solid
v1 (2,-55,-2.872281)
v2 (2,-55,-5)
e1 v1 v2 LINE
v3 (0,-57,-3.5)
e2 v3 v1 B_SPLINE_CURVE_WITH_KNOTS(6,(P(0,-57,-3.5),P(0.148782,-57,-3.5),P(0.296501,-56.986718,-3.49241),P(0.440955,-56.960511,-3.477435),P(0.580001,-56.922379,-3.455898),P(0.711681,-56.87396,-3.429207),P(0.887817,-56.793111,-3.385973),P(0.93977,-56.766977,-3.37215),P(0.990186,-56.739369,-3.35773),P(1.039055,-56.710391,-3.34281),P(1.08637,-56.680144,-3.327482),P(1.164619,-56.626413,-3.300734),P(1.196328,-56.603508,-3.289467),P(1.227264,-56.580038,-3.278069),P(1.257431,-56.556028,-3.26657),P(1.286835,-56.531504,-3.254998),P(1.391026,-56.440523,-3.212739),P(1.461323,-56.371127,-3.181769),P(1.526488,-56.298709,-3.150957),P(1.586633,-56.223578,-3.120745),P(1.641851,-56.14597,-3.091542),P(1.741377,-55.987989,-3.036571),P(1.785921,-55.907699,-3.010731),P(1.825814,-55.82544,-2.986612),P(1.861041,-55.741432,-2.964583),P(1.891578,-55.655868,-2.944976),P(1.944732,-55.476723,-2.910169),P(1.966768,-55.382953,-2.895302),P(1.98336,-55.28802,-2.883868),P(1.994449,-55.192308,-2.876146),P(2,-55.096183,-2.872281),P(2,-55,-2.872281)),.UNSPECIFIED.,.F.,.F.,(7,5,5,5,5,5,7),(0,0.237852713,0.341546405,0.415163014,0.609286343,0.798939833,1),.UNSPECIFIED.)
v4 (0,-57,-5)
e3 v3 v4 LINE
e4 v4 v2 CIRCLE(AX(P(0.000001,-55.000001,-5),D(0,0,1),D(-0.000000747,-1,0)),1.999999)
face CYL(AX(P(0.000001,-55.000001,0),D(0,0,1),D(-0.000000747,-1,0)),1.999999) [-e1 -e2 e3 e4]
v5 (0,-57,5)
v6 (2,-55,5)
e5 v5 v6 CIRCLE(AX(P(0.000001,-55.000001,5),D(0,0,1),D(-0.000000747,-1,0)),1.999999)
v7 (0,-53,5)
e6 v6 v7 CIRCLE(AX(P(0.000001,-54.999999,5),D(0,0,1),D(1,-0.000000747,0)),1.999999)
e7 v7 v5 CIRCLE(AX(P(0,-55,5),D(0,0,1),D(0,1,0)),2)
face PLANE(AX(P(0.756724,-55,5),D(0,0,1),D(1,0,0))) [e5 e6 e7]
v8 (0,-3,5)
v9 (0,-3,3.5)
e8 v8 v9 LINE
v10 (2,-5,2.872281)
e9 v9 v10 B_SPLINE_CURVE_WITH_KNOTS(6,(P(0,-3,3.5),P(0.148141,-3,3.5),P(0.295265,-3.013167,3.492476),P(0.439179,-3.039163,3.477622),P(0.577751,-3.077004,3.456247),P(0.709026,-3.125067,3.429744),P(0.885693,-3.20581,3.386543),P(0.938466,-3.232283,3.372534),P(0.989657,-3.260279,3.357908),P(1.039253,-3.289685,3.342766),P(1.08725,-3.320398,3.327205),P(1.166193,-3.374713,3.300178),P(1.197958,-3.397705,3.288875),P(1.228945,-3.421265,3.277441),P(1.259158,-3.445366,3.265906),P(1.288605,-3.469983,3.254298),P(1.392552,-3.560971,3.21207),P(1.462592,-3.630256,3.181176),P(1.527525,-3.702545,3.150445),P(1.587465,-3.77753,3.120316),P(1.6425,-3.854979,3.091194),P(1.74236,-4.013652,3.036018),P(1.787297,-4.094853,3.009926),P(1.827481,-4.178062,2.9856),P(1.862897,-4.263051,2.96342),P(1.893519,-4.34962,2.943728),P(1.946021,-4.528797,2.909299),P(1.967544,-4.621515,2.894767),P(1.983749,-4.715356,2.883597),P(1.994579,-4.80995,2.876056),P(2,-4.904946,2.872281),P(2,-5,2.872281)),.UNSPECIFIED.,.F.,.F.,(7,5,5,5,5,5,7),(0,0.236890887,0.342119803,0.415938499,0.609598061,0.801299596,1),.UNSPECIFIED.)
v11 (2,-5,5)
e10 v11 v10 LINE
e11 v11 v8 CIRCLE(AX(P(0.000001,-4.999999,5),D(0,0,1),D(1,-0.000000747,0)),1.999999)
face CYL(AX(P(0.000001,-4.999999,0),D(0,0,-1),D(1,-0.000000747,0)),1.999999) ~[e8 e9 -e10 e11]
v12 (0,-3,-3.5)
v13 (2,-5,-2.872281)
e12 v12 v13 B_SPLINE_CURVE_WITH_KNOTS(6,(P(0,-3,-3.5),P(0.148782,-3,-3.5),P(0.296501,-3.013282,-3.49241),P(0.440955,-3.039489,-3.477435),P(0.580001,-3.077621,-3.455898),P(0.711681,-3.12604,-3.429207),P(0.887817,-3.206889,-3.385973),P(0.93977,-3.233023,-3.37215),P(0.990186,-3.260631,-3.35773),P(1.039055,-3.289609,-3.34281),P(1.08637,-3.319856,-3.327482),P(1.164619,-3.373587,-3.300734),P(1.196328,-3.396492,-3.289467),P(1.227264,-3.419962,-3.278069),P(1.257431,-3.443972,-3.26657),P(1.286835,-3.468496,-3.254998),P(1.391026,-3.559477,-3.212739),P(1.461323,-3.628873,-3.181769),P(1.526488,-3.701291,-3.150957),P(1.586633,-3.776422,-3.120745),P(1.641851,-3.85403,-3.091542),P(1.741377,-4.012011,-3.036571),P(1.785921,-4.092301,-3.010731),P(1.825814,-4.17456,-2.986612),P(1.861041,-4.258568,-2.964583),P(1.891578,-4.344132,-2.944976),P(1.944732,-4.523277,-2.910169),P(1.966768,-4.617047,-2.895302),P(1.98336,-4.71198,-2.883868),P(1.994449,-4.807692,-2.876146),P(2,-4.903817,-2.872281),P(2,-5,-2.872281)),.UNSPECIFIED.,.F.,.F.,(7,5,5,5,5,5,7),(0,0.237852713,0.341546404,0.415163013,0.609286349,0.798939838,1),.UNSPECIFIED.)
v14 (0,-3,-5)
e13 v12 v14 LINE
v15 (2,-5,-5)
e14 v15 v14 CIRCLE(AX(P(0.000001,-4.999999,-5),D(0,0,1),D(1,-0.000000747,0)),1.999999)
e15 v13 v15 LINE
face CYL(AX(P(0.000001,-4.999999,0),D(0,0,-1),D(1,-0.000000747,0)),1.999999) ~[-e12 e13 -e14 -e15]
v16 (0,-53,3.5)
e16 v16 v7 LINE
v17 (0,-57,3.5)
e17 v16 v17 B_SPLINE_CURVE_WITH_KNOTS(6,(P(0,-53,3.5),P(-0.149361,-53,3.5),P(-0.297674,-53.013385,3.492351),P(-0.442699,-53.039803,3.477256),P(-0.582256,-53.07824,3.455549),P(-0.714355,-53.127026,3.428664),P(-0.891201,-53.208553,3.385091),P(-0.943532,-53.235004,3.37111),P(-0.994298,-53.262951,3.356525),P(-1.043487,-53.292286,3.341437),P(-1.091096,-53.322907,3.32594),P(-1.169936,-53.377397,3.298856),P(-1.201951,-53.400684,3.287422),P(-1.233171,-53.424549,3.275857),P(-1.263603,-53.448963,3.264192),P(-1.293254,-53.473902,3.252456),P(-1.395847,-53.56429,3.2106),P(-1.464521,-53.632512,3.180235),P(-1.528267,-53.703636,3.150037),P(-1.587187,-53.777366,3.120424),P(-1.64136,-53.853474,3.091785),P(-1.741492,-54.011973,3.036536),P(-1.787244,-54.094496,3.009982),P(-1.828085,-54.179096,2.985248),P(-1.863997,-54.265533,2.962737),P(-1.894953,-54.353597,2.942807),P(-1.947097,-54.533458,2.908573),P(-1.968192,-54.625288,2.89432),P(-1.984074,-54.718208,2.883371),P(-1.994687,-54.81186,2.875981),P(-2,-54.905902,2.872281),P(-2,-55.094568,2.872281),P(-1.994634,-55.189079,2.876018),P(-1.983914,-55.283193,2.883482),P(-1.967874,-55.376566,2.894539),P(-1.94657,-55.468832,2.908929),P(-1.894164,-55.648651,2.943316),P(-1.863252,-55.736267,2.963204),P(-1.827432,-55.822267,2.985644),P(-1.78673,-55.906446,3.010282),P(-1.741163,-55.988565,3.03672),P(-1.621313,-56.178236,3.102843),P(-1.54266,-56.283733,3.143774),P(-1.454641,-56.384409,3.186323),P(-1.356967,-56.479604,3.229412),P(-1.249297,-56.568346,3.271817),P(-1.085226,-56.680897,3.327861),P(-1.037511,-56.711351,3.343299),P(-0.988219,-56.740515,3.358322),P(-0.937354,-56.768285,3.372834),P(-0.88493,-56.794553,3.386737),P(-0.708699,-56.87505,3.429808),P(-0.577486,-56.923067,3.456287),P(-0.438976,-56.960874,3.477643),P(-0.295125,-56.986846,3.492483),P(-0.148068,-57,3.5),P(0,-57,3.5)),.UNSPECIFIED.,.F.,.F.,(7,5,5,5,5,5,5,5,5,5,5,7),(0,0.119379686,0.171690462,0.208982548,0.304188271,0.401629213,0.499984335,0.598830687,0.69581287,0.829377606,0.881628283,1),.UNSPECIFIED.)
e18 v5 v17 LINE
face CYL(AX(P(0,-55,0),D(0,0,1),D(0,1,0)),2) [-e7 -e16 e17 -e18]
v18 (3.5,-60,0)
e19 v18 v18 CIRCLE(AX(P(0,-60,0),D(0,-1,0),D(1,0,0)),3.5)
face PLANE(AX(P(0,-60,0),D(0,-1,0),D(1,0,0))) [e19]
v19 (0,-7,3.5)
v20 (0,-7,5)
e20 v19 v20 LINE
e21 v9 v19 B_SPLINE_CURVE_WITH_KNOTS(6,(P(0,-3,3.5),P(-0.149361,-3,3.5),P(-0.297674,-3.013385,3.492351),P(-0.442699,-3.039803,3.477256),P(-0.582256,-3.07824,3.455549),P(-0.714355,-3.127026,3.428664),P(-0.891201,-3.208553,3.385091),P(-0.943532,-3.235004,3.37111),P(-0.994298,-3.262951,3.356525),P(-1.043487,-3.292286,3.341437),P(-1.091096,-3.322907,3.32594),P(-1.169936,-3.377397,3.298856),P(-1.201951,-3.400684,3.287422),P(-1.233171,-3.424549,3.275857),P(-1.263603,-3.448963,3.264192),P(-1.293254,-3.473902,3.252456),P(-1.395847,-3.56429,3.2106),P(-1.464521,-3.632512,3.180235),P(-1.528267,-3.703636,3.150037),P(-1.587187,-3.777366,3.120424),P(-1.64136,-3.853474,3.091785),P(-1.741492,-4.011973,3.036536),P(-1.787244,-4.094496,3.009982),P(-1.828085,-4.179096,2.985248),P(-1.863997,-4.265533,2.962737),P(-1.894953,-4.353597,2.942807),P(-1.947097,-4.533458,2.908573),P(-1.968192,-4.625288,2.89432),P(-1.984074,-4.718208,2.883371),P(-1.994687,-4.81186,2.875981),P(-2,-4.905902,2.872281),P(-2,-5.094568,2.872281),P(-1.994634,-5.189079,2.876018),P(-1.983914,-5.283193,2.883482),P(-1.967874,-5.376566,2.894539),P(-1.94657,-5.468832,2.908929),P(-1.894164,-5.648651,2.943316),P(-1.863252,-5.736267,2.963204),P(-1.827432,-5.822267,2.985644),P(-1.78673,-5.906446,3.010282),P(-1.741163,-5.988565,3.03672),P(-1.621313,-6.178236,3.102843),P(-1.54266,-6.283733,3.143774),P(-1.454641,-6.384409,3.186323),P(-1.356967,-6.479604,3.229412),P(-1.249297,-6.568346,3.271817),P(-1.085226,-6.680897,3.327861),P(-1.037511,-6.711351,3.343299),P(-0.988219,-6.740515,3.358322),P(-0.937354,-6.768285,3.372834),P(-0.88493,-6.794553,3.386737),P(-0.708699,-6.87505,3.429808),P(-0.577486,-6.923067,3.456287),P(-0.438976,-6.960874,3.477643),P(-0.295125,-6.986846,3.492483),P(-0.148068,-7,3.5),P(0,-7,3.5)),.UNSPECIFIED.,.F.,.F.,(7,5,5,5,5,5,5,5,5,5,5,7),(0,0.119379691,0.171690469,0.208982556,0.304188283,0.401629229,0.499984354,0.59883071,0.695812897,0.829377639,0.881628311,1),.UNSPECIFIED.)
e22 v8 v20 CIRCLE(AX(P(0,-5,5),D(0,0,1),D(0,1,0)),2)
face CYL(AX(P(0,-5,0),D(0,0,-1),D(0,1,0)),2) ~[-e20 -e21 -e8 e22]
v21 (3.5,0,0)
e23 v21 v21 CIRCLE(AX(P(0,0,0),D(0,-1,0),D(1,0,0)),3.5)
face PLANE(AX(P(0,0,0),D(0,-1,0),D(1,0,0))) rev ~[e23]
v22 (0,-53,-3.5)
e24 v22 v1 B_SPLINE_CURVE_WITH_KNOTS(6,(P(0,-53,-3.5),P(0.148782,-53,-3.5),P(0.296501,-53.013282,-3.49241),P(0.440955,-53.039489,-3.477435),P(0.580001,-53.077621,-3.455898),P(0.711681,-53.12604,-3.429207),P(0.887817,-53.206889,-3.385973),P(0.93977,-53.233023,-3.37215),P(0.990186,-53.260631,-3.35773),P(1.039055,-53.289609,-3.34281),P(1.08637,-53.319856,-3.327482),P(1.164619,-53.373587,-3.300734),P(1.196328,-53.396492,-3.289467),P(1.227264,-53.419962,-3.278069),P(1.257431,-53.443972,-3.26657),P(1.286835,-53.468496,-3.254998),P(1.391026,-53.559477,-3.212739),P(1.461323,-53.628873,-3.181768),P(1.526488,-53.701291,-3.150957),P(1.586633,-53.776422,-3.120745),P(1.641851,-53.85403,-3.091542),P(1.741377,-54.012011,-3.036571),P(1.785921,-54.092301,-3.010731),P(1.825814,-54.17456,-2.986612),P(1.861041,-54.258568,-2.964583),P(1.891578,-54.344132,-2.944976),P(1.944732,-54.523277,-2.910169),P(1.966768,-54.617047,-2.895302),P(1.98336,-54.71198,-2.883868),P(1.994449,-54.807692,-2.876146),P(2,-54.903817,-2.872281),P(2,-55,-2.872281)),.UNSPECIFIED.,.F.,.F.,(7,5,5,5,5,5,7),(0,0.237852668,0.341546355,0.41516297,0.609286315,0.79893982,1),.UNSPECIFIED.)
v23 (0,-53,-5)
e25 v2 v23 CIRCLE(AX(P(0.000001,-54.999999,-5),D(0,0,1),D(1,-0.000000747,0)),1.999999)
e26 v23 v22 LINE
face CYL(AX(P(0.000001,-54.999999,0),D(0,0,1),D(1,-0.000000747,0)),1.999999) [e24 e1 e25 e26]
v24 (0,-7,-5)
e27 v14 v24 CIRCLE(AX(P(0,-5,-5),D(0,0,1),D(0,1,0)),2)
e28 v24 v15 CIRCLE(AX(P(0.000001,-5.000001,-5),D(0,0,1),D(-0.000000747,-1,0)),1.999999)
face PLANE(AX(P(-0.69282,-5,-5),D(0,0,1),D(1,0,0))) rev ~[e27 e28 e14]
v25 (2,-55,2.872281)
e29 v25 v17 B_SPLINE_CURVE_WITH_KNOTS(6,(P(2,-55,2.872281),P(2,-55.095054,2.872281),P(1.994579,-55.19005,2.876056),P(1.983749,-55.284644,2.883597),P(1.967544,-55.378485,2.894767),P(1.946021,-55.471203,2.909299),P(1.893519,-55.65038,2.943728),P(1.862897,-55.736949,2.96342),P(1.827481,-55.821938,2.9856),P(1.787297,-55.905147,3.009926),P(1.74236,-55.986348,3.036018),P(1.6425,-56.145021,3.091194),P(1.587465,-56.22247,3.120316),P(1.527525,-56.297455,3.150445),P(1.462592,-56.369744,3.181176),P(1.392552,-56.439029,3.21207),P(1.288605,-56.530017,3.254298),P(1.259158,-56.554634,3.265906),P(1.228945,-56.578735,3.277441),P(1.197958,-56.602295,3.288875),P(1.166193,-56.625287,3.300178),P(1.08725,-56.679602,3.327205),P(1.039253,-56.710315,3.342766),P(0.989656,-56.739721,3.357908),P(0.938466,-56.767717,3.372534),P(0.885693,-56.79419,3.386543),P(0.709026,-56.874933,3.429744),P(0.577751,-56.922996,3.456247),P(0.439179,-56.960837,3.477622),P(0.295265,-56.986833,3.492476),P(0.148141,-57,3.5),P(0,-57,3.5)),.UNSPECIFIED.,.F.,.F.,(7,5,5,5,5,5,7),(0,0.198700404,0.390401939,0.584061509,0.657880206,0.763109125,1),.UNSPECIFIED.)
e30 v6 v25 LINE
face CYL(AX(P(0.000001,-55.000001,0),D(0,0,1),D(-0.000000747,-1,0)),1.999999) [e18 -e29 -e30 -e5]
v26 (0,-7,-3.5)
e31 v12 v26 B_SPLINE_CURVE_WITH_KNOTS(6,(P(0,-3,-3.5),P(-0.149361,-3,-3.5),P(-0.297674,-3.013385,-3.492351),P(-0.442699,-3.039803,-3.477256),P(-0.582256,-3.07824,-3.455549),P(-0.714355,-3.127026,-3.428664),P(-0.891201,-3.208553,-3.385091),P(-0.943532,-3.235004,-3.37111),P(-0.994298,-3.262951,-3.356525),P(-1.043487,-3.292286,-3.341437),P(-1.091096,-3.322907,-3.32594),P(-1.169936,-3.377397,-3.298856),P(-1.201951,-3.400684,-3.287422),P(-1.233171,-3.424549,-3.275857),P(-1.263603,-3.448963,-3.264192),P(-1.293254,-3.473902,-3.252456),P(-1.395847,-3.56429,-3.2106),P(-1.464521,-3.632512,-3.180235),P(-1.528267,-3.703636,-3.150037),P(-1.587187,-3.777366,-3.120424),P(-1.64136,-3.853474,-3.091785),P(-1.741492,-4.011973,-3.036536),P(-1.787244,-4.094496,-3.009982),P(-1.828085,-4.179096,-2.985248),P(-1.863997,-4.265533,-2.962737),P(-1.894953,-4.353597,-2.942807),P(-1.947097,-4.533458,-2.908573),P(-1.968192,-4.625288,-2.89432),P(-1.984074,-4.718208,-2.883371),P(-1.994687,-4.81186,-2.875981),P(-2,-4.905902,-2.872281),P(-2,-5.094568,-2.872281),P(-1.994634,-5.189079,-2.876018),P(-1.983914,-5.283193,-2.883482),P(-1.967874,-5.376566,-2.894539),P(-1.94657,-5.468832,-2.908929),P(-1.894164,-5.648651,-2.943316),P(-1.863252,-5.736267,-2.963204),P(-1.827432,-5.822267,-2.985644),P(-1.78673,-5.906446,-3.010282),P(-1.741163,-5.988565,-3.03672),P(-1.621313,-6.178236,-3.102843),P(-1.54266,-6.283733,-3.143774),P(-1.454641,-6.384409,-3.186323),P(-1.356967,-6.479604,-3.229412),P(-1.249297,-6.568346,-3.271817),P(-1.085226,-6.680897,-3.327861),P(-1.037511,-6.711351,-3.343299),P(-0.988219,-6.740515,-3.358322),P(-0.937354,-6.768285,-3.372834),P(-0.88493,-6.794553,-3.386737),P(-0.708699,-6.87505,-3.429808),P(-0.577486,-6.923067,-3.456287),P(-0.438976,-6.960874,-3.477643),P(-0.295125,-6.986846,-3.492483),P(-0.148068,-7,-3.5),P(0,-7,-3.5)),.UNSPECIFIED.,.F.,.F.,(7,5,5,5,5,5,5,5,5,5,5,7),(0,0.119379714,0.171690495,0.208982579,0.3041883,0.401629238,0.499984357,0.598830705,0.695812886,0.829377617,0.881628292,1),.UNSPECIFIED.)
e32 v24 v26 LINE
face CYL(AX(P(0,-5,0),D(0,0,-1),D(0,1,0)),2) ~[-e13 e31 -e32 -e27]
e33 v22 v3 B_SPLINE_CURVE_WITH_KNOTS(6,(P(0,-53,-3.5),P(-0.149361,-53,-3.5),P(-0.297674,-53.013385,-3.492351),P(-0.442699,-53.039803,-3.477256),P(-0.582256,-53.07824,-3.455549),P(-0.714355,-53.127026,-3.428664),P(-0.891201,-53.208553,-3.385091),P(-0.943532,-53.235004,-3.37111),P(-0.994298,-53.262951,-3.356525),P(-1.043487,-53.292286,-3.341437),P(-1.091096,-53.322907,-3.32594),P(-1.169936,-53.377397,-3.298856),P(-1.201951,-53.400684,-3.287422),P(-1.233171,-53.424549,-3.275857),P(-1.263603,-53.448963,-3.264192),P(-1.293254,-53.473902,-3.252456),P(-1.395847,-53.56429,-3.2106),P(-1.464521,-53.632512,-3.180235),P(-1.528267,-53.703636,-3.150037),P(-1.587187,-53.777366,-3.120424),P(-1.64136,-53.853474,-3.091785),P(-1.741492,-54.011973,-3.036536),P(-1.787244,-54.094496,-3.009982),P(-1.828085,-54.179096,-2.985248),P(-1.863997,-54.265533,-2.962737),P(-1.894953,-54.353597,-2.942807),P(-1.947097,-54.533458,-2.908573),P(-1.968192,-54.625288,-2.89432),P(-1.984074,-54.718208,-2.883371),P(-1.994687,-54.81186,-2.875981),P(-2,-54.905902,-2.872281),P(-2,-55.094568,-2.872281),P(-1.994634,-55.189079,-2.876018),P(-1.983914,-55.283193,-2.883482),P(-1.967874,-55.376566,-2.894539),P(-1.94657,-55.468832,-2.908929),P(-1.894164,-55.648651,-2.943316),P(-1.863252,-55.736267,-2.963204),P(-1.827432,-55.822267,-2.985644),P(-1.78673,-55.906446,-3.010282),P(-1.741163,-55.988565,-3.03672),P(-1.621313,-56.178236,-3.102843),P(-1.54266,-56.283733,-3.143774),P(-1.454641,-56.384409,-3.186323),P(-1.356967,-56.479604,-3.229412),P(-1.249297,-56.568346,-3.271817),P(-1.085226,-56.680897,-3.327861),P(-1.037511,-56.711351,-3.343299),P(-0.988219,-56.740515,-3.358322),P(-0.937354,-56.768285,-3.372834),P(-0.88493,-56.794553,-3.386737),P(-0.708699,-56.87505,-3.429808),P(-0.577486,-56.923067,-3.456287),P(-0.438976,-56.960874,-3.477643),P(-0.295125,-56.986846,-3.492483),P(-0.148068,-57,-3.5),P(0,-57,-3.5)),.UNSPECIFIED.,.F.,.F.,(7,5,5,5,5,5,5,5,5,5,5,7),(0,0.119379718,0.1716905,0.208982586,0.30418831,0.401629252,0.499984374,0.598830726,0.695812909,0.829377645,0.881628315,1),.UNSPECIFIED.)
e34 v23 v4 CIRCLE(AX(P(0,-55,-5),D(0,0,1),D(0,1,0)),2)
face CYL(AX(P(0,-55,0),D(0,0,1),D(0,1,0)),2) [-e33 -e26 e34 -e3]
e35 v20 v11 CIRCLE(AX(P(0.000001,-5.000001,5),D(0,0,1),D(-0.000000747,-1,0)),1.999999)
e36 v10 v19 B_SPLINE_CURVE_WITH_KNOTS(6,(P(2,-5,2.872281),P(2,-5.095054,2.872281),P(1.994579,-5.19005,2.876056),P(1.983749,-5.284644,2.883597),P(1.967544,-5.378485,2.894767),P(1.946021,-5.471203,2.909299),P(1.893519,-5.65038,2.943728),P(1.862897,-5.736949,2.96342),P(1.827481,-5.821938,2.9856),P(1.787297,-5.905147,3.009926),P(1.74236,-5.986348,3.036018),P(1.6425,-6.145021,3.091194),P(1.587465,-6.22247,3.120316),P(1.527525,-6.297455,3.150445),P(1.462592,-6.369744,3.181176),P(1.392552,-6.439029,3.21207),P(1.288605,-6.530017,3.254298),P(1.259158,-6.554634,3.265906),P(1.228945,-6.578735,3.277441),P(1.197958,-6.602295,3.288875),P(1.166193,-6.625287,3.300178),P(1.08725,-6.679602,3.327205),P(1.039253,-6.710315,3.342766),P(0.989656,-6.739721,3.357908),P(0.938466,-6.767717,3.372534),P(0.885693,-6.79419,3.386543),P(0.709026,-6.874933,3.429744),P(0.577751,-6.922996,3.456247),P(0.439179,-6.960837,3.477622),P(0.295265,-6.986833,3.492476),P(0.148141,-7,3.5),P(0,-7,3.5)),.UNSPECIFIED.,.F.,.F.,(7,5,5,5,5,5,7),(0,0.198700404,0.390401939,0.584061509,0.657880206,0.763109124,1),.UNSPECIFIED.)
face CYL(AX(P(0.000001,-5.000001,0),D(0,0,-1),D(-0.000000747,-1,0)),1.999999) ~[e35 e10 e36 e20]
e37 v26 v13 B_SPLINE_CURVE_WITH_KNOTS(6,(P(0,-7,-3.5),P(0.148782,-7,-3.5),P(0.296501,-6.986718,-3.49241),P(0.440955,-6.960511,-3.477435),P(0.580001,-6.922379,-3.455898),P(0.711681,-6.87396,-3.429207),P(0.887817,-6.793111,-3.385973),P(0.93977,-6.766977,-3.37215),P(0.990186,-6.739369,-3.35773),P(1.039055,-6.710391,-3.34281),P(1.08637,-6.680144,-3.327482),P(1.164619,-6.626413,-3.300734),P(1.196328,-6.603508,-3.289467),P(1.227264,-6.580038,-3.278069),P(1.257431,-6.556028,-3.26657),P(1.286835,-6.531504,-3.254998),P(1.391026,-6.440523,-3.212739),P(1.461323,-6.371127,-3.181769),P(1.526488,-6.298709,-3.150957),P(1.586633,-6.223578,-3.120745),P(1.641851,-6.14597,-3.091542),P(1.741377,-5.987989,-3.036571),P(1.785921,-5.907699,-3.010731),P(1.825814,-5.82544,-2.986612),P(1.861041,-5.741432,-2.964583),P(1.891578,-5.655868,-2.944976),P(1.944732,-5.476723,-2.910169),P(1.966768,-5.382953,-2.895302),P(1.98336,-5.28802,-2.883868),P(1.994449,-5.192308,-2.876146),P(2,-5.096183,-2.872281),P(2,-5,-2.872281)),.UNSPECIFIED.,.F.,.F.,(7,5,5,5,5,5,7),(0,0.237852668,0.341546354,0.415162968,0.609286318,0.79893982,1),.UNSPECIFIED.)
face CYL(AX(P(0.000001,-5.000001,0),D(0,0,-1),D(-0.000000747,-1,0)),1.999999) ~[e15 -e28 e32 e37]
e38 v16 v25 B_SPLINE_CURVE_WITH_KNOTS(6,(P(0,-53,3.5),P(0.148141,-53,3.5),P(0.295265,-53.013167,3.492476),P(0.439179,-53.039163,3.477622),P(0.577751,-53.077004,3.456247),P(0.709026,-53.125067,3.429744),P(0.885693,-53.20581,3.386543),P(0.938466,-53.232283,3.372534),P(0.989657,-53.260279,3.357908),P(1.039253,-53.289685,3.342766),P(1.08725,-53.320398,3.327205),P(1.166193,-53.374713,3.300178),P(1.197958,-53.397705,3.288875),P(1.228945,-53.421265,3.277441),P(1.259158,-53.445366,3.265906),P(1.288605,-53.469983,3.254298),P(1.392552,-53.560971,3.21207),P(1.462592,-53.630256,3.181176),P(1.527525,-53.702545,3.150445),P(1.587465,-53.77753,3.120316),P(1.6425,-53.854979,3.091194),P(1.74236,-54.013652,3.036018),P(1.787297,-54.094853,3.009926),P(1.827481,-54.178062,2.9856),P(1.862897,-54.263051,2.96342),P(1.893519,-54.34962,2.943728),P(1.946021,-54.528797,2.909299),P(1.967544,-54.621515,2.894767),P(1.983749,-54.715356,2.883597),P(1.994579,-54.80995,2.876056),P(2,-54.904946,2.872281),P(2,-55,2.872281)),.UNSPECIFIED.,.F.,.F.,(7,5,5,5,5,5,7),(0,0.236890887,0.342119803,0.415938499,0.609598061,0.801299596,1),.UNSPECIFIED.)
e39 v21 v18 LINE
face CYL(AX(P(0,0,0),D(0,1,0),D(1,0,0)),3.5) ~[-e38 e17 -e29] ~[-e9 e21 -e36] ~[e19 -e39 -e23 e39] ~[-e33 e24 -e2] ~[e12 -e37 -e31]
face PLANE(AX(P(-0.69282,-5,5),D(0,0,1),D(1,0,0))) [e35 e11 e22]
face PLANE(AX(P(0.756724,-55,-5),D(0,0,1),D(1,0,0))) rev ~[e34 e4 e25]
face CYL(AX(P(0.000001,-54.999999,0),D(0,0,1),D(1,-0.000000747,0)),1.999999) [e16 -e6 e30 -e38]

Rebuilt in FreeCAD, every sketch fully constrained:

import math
import FreeCAD as App
import Part
import Sketcher

V = App.Vector

doc = App.newDocument("Part")
body = doc.addObject("PartDesign::Body", "Body")

# Sketch on XZ plane
sketch1 = body.newObject("Sketcher::SketchObject", "Sketch")
sketch1.AttachmentSupport = (doc.getObject("XZ_Plane"), [""])
sketch1.MapMode = "FlatFace"
sketch1.addGeometry(Part.Circle(V(0, 0, 0), V(0, 0, 1), 3.5), False)
sketch1.addConstraint([
    Sketcher.Constraint("Coincident", 0, 3, -1, 1),
    Sketcher.Constraint("Diameter", 0, 7.0),
])
pad1 = body.newObject("PartDesign::Pad", "Pad")
pad1.Profile = sketch1
pad1.Length = 60

# Sketch on XY plane
sketch2 = body.newObject("Sketcher::SketchObject", "Sketch001")
sketch2.AttachmentSupport = (doc.getObject("XY_Plane"), [""])
sketch2.MapMode = "FlatFace"
sketch2.addGeometry([
    Part.ArcOfCircle(Part.Circle(V(0, -5, 0), V(0, 0, 1), 2), math.radians(90), math.radians(270)),  # 0
    Part.ArcOfCircle(Part.Circle(V(0, -5, 0), V(0, 0, 1), 2), math.radians(-90), math.radians(0)),  # 1
    Part.ArcOfCircle(Part.Circle(V(0, -5, 0), V(0, 0, 1), 2), math.radians(0), math.radians(90)),  # 2
    Part.ArcOfCircle(Part.Circle(V(0, -55, 0), V(0, 0, 1), 2), math.radians(0), math.radians(90)),  # 3
    Part.ArcOfCircle(Part.Circle(V(0, -55, 0), V(0, 0, 1), 2), math.radians(90), math.radians(270)),  # 4
    Part.ArcOfCircle(Part.Circle(V(0, -55, 0), V(0, 0, 1), 2), math.radians(-90), math.radians(0)),  # 5
], False)
sketch2.addConstraint([
    Sketcher.Constraint("Tangent", 0, 2, 1, 1),
    Sketcher.Constraint("Tangent", 1, 2, 2, 1),
    Sketcher.Constraint("Tangent", 2, 2, 0, 1),
    Sketcher.Constraint("Tangent", 3, 2, 4, 1),
    Sketcher.Constraint("Tangent", 4, 2, 5, 1),
    Sketcher.Constraint("Tangent", 5, 2, 3, 1),
    Sketcher.Constraint("Equal", 2, 3),
    Sketcher.Constraint("PointOnObject", 0, 3, -2),
    Sketcher.Constraint("PointOnObject", 3, 3, -2),
    Sketcher.Constraint("PointOnObject", 0, 2, -2),
    Sketcher.Constraint("PointOnObject", 2, 2, -2),
    Sketcher.Constraint("PointOnObject", 3, 2, -2),
    Sketcher.Constraint("PointOnObject", 4, 2, -2),
    Sketcher.Constraint("Horizontal", 2, 3, 1, 2),
    Sketcher.Constraint("Horizontal", 4, 3, 5, 2),
    Sketcher.Constraint("Radius", 0, 2.0),
    Sketcher.Constraint("DistanceY", 0, 3, -1, 1, 5.0),
    Sketcher.Constraint("DistanceY", 3, 3, -1, 1, 54.999999),
])
pad2 = body.newObject("PartDesign::Pad", "Pad001")
pad2.Profile = sketch2
pad2.Length = 10
pad2.Midplane = True

doc.recompute()
